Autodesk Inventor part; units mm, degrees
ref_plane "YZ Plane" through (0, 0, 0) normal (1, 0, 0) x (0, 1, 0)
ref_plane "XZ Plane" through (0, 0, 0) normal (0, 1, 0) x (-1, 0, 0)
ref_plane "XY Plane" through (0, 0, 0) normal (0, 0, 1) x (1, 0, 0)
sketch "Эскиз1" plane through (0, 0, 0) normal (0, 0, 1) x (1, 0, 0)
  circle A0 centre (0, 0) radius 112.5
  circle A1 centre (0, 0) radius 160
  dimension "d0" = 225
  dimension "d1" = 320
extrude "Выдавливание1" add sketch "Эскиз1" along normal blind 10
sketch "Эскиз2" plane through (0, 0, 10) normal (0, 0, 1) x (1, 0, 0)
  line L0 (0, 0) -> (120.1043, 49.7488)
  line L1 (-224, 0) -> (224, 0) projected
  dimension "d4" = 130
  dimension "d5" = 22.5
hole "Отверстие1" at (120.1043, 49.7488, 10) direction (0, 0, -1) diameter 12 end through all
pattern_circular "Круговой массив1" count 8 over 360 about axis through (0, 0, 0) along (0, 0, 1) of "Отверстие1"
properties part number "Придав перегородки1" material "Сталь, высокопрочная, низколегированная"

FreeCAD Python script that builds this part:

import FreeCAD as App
import Part
import Sketcher
from FreeCAD import Vector

doc = App.newDocument("Part")
body = doc.addObject("PartDesign::Body", "Body")

sketch1 = body.newObject("Sketcher::SketchObject", "Sketch")
sketch1.AttachmentSupport = (doc.getObject("XY_Plane"), [""])
sketch1.MapMode = "FlatFace"
sketch1.addGeometry([
    Part.Circle(Vector(0, 0, 0), Vector(0, 0, 1), 160),
    Part.Circle(Vector(0, 0, 0), Vector(0, 0, 1), 112),
], False)
sketch1.addConstraint([
    Sketcher.Constraint("Coincident", 0, 3, -1, 1),
    Sketcher.Constraint("Coincident", 1, 3, -1, 1),
    Sketcher.Constraint("Diameter", 0, 320.0),
    Sketcher.Constraint("Diameter", 1, 225.0),
])
pad1 = body.newObject("PartDesign::Pad", "Pad")
pad1.Profile = sketch1
pad1.Length = 10

sketch2 = body.newObject("Sketcher::SketchObject", "Sketch001")
sketch2.AttachmentSupport = (doc.getObject("XY_Plane"), [""])
sketch2.MapMode = "FlatFace"
sketch2.AttachmentOffset = App.Placement(Vector(0, 0, 10), App.Rotation())
sketch2.addGeometry(Part.Circle(Vector(120, 50, 0), Vector(0, 0, 1), 6), False)
sketch2.addConstraint([
    Sketcher.Constraint("Diameter", 0, 12.0),
    Sketcher.Constraint("DistanceX", -1, 1, 0, 3, 120.1043),
    Sketcher.Constraint("DistanceY", -1, 1, 0, 3, 49.7488),
])
doc.recompute()
hole = body.newObject("PartDesign::Hole", "Hole")
hole.Profile = sketch2
hole.ThreadType = "None"
hole.Diameter = 12
hole.DepthType = "ThroughAll"
doc.recompute()

polarpattern = body.newObject("PartDesign::PolarPattern", "PolarPattern")
polarpattern.Originals = [hole]
polarpattern.Axis = (doc.getObject("Z_Axis"), [""])
polarpattern.Angle = 360
polarpattern.Occurrences = 8
body.Tip = polarpattern

doc.recompute()
